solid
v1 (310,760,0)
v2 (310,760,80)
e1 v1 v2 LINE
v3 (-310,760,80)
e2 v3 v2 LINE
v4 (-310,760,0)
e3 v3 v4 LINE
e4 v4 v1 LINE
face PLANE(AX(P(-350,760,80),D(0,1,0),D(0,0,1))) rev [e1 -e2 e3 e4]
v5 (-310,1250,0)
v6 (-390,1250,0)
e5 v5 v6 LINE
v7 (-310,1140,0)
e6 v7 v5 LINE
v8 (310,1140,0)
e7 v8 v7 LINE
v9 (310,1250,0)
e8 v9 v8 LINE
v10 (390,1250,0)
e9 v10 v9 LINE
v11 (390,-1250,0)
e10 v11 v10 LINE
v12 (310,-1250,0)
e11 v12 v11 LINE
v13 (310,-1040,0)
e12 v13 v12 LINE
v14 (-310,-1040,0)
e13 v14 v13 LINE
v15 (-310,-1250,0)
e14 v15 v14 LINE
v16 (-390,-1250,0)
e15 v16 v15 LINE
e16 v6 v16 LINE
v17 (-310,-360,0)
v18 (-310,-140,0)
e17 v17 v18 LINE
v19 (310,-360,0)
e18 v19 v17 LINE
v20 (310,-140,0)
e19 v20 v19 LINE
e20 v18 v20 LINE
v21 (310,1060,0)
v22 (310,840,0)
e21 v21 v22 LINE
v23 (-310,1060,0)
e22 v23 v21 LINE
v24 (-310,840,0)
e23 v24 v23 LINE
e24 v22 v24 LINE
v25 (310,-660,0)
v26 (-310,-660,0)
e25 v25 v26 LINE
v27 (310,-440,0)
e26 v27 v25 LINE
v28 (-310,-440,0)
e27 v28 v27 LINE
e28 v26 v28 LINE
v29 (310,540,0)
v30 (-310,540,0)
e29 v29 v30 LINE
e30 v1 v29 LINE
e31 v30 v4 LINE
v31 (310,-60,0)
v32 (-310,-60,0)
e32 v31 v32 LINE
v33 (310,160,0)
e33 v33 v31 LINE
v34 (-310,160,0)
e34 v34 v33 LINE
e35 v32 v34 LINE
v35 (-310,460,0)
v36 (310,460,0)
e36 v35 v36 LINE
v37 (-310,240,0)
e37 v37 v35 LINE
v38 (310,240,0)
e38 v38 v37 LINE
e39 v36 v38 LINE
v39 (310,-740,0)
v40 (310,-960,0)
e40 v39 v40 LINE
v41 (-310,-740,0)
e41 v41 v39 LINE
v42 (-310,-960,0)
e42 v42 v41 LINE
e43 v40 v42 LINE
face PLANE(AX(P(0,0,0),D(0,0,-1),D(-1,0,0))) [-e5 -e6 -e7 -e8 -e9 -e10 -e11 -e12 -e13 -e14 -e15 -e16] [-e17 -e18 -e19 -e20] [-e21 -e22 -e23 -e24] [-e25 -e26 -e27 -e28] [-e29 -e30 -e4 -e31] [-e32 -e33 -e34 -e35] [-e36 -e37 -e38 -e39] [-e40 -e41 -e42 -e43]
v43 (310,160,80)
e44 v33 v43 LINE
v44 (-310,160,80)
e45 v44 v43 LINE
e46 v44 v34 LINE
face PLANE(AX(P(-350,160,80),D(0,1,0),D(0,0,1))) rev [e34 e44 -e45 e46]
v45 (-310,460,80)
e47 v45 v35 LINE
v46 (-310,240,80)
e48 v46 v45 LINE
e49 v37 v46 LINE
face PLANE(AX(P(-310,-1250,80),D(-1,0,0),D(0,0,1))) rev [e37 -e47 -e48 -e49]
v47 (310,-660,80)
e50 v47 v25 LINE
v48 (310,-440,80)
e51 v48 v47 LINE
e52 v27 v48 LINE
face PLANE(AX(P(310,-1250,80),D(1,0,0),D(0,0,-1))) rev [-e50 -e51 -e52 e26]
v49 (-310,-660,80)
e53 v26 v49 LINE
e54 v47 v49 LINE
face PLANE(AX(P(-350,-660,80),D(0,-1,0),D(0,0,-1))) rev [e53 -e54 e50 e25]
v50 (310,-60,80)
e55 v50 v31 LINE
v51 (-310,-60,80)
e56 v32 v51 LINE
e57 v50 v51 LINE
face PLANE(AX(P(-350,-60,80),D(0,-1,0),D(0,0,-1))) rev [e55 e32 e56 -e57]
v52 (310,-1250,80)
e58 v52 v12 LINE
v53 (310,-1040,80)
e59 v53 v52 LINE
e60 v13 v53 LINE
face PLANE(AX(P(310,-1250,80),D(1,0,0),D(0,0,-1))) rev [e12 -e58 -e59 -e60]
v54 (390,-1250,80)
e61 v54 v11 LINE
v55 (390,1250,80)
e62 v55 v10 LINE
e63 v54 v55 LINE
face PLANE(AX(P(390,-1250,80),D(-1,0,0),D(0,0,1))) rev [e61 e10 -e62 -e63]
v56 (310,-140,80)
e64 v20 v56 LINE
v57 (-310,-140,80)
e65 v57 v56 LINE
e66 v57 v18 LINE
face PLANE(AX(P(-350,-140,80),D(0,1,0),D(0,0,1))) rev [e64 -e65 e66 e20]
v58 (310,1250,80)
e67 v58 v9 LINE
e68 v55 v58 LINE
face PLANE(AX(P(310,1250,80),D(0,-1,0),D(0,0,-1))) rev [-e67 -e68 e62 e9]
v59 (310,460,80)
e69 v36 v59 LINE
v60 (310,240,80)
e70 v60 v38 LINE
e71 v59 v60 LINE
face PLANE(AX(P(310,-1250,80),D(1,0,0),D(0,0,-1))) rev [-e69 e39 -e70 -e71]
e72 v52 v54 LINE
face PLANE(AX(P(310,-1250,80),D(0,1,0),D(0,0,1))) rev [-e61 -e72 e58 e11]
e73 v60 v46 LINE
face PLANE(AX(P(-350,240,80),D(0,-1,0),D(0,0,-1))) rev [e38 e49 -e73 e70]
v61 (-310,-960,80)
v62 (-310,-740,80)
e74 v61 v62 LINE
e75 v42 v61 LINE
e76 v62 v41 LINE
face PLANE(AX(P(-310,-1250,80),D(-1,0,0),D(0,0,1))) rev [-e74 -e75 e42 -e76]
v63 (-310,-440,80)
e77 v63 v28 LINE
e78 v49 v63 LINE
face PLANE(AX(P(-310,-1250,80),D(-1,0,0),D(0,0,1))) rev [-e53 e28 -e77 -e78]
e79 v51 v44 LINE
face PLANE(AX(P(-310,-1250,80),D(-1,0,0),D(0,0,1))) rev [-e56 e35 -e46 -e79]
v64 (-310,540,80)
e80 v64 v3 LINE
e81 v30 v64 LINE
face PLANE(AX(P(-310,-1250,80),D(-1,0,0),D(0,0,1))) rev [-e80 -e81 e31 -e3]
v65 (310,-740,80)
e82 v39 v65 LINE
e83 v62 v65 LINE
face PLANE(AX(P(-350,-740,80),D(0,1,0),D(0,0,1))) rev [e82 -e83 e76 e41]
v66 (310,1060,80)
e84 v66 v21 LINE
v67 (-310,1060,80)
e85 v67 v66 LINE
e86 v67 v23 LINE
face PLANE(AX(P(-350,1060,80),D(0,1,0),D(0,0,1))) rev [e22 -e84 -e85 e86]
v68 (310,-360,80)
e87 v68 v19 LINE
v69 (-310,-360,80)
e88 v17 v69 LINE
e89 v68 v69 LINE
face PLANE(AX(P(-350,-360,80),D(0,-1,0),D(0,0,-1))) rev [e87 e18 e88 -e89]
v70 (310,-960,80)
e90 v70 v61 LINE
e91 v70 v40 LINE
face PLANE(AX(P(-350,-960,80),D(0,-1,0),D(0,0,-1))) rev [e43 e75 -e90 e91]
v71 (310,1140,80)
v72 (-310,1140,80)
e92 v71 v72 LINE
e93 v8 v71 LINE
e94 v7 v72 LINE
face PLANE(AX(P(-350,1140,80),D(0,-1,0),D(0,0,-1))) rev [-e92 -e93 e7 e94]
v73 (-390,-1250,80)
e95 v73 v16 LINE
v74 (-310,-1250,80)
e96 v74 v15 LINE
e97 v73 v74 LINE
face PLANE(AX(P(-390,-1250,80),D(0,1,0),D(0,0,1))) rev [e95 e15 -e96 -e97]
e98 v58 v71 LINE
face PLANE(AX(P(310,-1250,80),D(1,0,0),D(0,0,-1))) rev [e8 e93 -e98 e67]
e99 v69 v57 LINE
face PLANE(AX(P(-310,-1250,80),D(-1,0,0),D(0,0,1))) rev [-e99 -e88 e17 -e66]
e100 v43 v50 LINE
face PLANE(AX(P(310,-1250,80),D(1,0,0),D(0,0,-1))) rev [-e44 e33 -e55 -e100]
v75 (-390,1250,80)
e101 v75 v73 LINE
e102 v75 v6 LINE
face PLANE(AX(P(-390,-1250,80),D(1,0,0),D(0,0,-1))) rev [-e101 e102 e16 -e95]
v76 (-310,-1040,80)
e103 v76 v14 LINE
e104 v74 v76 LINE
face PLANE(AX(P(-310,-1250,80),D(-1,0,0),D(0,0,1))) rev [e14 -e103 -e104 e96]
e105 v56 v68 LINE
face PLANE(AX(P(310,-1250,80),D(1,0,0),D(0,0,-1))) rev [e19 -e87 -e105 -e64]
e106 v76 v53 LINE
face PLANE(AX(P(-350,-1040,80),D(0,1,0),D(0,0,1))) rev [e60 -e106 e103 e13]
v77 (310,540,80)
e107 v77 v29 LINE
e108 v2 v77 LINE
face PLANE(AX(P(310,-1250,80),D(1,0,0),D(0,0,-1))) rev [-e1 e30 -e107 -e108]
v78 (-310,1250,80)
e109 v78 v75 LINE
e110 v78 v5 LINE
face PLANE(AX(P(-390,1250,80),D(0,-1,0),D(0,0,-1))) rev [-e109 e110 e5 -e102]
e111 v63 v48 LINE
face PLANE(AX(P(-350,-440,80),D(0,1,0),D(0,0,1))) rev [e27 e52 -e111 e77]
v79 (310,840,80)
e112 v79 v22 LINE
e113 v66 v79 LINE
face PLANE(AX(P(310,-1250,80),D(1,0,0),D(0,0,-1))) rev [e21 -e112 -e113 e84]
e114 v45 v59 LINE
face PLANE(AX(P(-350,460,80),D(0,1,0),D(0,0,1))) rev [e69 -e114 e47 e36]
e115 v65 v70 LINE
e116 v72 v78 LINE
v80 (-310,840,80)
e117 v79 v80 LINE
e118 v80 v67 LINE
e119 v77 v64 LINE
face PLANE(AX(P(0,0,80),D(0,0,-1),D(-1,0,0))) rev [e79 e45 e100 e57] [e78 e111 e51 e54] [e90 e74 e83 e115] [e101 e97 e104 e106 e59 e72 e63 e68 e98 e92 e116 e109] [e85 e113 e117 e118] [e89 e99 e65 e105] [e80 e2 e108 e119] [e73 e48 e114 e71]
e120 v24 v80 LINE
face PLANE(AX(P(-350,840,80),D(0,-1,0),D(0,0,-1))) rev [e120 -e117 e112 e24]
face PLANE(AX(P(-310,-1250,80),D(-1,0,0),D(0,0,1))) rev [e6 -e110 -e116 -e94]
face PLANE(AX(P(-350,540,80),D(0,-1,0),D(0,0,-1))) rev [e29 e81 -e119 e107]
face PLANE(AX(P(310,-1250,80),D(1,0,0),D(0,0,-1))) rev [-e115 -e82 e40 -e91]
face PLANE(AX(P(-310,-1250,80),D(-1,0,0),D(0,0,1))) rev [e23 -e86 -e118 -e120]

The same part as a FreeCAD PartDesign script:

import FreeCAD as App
import Part
import Sketcher
Q = App.Units.Quantity


def add_polygon(sketch, points):
    """Adds a closed chain of lines whose ends are joined by coincident constraints."""
    first, n = sketch.GeometryCount, len(points)
    for a, b in zip(points, points[1:] + points[:1]):
        sketch.addGeometry(Part.LineSegment(App.Vector(*a, 0), App.Vector(*b, 0)), False)
    for i in range(n):
        sketch.addConstraint(Sketcher.Constraint("Coincident", first + i, 2, first + (i + 1) % n, 1))

doc = App.newDocument("Part")
body = doc.addObject("PartDesign::Body", "Body")

# Sketch on XY plane
sketch1 = body.newObject("Sketcher::SketchObject", "Sketch")
sketch1.AttachmentSupport = (doc.getObject("XY_Plane"), [""])
sketch1.MapMode = "FlatFace"
add_polygon(sketch1, [(-390, 1250), (-390, -1250), (-310, -1250), (-310, 1250)])  # lines 0-3
sketch1.addConstraint(Sketcher.Constraint("Vertical", 0))
sketch1.addConstraint(Sketcher.Constraint("Horizontal", 1))
sketch1.addConstraint(Sketcher.Constraint("Vertical", 2))
sketch1.addConstraint(Sketcher.Constraint("Horizontal", 3))
sketch1.addConstraint(Sketcher.Constraint("DistanceX", 1, 1, 1, 2, Q("80 mm")))
sketch1.addConstraint(Sketcher.Constraint("DistanceY", 0, 2, 0, 1, Q("2500 mm")))
sketch1.addConstraint(Sketcher.Constraint("DistanceX", 0, 2, -1, 1, Q("390 mm")))
sketch1.addConstraint(Sketcher.Constraint("DistanceY", 0, 2, -1, 1, Q("1250 mm")))
pad1 = body.newObject("PartDesign::Pad", "Pad")
pad1.Profile = sketch1
pad1.Length = 80
body2 = doc.addObject("PartDesign::Body", "Body001")

# Sketch on XY plane
sketch2 = body2.newObject("Sketcher::SketchObject", "Sketch001")
sketch2.AttachmentSupport = (doc.getObject("XY_Plane001"), [""])
sketch2.MapMode = "FlatFace"
add_polygon(sketch2, [(310, 1250), (310, -1250), (390, -1250), (390, 1250)])  # lines 0-3
sketch2.addConstraint(Sketcher.Constraint("Vertical", 0))
sketch2.addConstraint(Sketcher.Constraint("Horizontal", 1))
sketch2.addConstraint(Sketcher.Constraint("Vertical", 2))
sketch2.addConstraint(Sketcher.Constraint("Horizontal", 3))
sketch2.addConstraint(Sketcher.Constraint("DistanceX", 1, 1, 1, 2, Q("80 mm")))
sketch2.addConstraint(Sketcher.Constraint("DistanceY", 0, 2, 0, 1, Q("2500 mm")))
sketch2.addConstraint(Sketcher.Constraint("DistanceX", -1, 1, 0, 2, Q("310 mm")))
sketch2.addConstraint(Sketcher.Constraint("DistanceY", 0, 2, -1, 1, Q("1250 mm")))
pad2 = body2.newObject("PartDesign::Pad", "Pad001")
pad2.Profile = sketch2
pad2.Length = 80
body.AllowCompound = True
doc.recompute()

boolean = body.newObject("PartDesign::Boolean", "Boolean")
boolean.Type = "Fuse"
boolean.addObjects([body2])

# Sketch on XY plane
sketch3 = body.newObject("Sketcher::SketchObject", "Sketch002")
sketch3.AttachmentSupport = (doc.getObject("XY_Plane"), [""])
sketch3.MapMode = "FlatFace"
add_polygon(sketch3, [(-350, 1140), (-350, 1060), (350, 1060), (350, 1140)])  # lines 0-3
sketch3.addConstraint(Sketcher.Constraint("Vertical", 0))
sketch3.addConstraint(Sketcher.Constraint("Horizontal", 1))
sketch3.addConstraint(Sketcher.Constraint("Vertical", 2))
sketch3.addConstraint(Sketcher.Constraint("Horizontal", 3))
sketch3.addConstraint(Sketcher.Constraint("DistanceX", 1, 1, 1, 2, Q("700 mm")))
sketch3.addConstraint(Sketcher.Constraint("DistanceY", 0, 2, 0, 1, Q("80 mm")))
sketch3.addConstraint(Sketcher.Constraint("DistanceX", 0, 2, -1, 1, Q("350 mm")))
sketch3.addConstraint(Sketcher.Constraint("DistanceY", -1, 1, 0, 2, Q("1060 mm")))
pad3 = body.newObject("PartDesign::Pad", "Pad002")
pad3.Profile = sketch3
pad3.Length = 80

# Sketch on XY plane
sketch4 = body.newObject("Sketcher::SketchObject", "Sketch003")
sketch4.AttachmentSupport = (doc.getObject("XY_Plane"), [""])
sketch4.MapMode = "FlatFace"
add_polygon(sketch4, [(-350, 840), (-350, 760), (350, 760), (350, 840)])  # lines 0-3
sketch4.addConstraint(Sketcher.Constraint("Vertical", 0))
sketch4.addConstraint(Sketcher.Constraint("Horizontal", 1))
sketch4.addConstraint(Sketcher.Constraint("Vertical", 2))
sketch4.addConstraint(Sketcher.Constraint("Horizontal", 3))
sketch4.addConstraint(Sketcher.Constraint("DistanceX", 1, 1, 1, 2, Q("700 mm")))
sketch4.addConstraint(Sketcher.Constraint("DistanceY", 0, 2, 0, 1, Q("80 mm")))
sketch4.addConstraint(Sketcher.Constraint("DistanceX", 0, 2, -1, 1, Q("350 mm")))
sketch4.addConstraint(Sketcher.Constraint("DistanceY", -1, 1, 0, 2, Q("760 mm")))
pad4 = body.newObject("PartDesign::Pad", "Pad003")
pad4.Profile = sketch4
pad4.Length = 80

# Sketch on XY plane
sketch5 = body.newObject("Sketcher::SketchObject", "Sketch004")
sketch5.AttachmentSupport = (doc.getObject("XY_Plane"), [""])
sketch5.MapMode = "FlatFace"
add_polygon(sketch5, [(-350, 540), (-350, 460), (350, 460), (350, 540)])  # lines 0-3
sketch5.addConstraint(Sketcher.Constraint("Vertical", 0))
sketch5.addConstraint(Sketcher.Constraint("Horizontal", 1))
sketch5.addConstraint(Sketcher.Constraint("Vertical", 2))
sketch5.addConstraint(Sketcher.Constraint("Horizontal", 3))
sketch5.addConstraint(Sketcher.Constraint("DistanceX", 1, 1, 1, 2, Q("700 mm")))
sketch5.addConstraint(Sketcher.Constraint("DistanceY", 0, 2, 0, 1, Q("80 mm")))
sketch5.addConstraint(Sketcher.Constraint("DistanceX", 0, 2, -1, 1, Q("350 mm")))
sketch5.addConstraint(Sketcher.Constraint("DistanceY", -1, 1, 0, 2, Q("460 mm")))
pad5 = body.newObject("PartDesign::Pad", "Pad004")
pad5.Profile = sketch5
pad5.Length = 80

# Sketch on XY plane
sketch6 = body.newObject("Sketcher::SketchObject", "Sketch005")
sketch6.AttachmentSupport = (doc.getObject("XY_Plane"), [""])
sketch6.MapMode = "FlatFace"
add_polygon(sketch6, [(-350, 240), (-350, 160), (350, 160), (350, 240)])  # lines 0-3
sketch6.addConstraint(Sketcher.Constraint("Vertical", 0))
sketch6.addConstraint(Sketcher.Constraint("Horizontal", 1))
sketch6.addConstraint(Sketcher.Constraint("Vertical", 2))
sketch6.addConstraint(Sketcher.Constraint("Horizontal", 3))
sketch6.addConstraint(Sketcher.Constraint("DistanceX", 1, 1, 1, 2, Q("700 mm")))
sketch6.addConstraint(Sketcher.Constraint("DistanceY", 0, 2, 0, 1, Q("80 mm")))
sketch6.addConstraint(Sketcher.Constraint("DistanceX", 0, 2, -1, 1, Q("350 mm")))
sketch6.addConstraint(Sketcher.Constraint("DistanceY", -1, 1, 0, 2, Q("160 mm")))
pad6 = body.newObject("PartDesign::Pad", "Pad005")
pad6.Profile = sketch6
pad6.Length = 80

# Sketch on XY plane
sketch7 = body.newObject("Sketcher::SketchObject", "Sketch006")
sketch7.AttachmentSupport = (doc.getObject("XY_Plane"), [""])
sketch7.MapMode = "FlatFace"
add_polygon(sketch7, [(-350, -60), (-350, -140), (350, -140), (350, -60)])  # lines 0-3
sketch7.addConstraint(Sketcher.Constraint("Vertical", 0))
sketch7.addConstraint(Sketcher.Constraint("Horizontal", 1))
sketch7.addConstraint(Sketcher.Constraint("Vertical", 2))
sketch7.addConstraint(Sketcher.Constraint("Horizontal", 3))
sketch7.addConstraint(Sketcher.Constraint("DistanceX", 1, 1, 1, 2, Q("700 mm")))
sketch7.addConstraint(Sketcher.Constraint("DistanceY", 0, 2, 0, 1, Q("80 mm")))
sketch7.addConstraint(Sketcher.Constraint("DistanceX", 0, 2, -1, 1, Q("350 mm")))
sketch7.addConstraint(Sketcher.Constraint("DistanceY", 0, 2, -1, 1, Q("140 mm")))
pad7 = body.newObject("PartDesign::Pad", "Pad006")
pad7.Profile = sketch7
pad7.Length = 80

# Sketch on XY plane
sketch8 = body.newObject("Sketcher::SketchObject", "Sketch007")
sketch8.AttachmentSupport = (doc.getObject("XY_Plane"), [""])
sketch8.MapMode = "FlatFace"
add_polygon(sketch8, [(-350, -360), (-350, -440), (350, -440), (350, -360)])  # lines 0-3
sketch8.addConstraint(Sketcher.Constraint("Vertical", 0))
sketch8.addConstraint(Sketcher.Constraint("Horizontal", 1))
sketch8.addConstraint(Sketcher.Constraint("Vertical", 2))
sketch8.addConstraint(Sketcher.Constraint("Horizontal", 3))
sketch8.addConstraint(Sketcher.Constraint("DistanceX", 1, 1, 1, 2, Q("700 mm")))
sketch8.addConstraint(Sketcher.Constraint("DistanceY", 0, 2, 0, 1, Q("80 mm")))
sketch8.addConstraint(Sketcher.Constraint("DistanceX", 0, 2, -1, 1, Q("350 mm")))
sketch8.addConstraint(Sketcher.Constraint("DistanceY", 0, 2, -1, 1, Q("440 mm")))
pad8 = body.newObject("PartDesign::Pad", "Pad007")
pad8.Profile = sketch8
pad8.Length = 80

# Sketch on XY plane
sketch9 = body.newObject("Sketcher::SketchObject", "Sketch008")
sketch9.AttachmentSupport = (doc.getObject("XY_Plane"), [""])
sketch9.MapMode = "FlatFace"
add_polygon(sketch9, [(-350, -660), (-350, -740), (350, -740), (350, -660)])  # lines 0-3
sketch9.addConstraint(Sketcher.Constraint("Vertical", 0))
sketch9.addConstraint(Sketcher.Constraint("Horizontal", 1))
sketch9.addConstraint(Sketcher.Constraint("Vertical", 2))
sketch9.addConstraint(Sketcher.Constraint("Horizontal", 3))
sketch9.addConstraint(Sketcher.Constraint("DistanceX", 1, 1, 1, 2, Q("700 mm")))
sketch9.addConstraint(Sketcher.Constraint("DistanceY", 0, 2, 0, 1, Q("80 mm")))
sketch9.addConstraint(Sketcher.Constraint("DistanceX", 0, 2, -1, 1, Q("350 mm")))
sketch9.addConstraint(Sketcher.Constraint("DistanceY", 0, 2, -1, 1, Q("740 mm")))
pad9 = body.newObject("PartDesign::Pad", "Pad008")
pad9.Profile = sketch9
pad9.Length = 80

# Sketch on XY plane
sketch10 = body.newObject("Sketcher::SketchObject", "Sketch009")
sketch10.AttachmentSupport = (doc.getObject("XY_Plane"), [""])
sketch10.MapMode = "FlatFace"
add_polygon(sketch10, [(-350, -960), (-350, -1040), (350, -1040), (350, -960)])  # lines 0-3
sketch10.addConstraint(Sketcher.Constraint("Vertical", 0))
sketch10.addConstraint(Sketcher.Constraint("Horizontal", 1))
sketch10.addConstraint(Sketcher.Constraint("Vertical", 2))
sketch10.addConstraint(Sketcher.Constraint("Horizontal", 3))
sketch10.addConstraint(Sketcher.Constraint("DistanceX", 1, 1, 1, 2, Q("700 mm")))
sketch10.addConstraint(Sketcher.Constraint("DistanceY", 0, 2, 0, 1, Q("80 mm")))
sketch10.addConstraint(Sketcher.Constraint("DistanceX", 0, 2, -1, 1, Q("350 mm")))
sketch10.addConstraint(Sketcher.Constraint("DistanceY", 0, 2, -1, 1, Q("1040 mm")))
pad10 = body.newObject("PartDesign::Pad", "Pad009")
pad10.Profile = sketch10
pad10.Length = 80

doc.recompute()
